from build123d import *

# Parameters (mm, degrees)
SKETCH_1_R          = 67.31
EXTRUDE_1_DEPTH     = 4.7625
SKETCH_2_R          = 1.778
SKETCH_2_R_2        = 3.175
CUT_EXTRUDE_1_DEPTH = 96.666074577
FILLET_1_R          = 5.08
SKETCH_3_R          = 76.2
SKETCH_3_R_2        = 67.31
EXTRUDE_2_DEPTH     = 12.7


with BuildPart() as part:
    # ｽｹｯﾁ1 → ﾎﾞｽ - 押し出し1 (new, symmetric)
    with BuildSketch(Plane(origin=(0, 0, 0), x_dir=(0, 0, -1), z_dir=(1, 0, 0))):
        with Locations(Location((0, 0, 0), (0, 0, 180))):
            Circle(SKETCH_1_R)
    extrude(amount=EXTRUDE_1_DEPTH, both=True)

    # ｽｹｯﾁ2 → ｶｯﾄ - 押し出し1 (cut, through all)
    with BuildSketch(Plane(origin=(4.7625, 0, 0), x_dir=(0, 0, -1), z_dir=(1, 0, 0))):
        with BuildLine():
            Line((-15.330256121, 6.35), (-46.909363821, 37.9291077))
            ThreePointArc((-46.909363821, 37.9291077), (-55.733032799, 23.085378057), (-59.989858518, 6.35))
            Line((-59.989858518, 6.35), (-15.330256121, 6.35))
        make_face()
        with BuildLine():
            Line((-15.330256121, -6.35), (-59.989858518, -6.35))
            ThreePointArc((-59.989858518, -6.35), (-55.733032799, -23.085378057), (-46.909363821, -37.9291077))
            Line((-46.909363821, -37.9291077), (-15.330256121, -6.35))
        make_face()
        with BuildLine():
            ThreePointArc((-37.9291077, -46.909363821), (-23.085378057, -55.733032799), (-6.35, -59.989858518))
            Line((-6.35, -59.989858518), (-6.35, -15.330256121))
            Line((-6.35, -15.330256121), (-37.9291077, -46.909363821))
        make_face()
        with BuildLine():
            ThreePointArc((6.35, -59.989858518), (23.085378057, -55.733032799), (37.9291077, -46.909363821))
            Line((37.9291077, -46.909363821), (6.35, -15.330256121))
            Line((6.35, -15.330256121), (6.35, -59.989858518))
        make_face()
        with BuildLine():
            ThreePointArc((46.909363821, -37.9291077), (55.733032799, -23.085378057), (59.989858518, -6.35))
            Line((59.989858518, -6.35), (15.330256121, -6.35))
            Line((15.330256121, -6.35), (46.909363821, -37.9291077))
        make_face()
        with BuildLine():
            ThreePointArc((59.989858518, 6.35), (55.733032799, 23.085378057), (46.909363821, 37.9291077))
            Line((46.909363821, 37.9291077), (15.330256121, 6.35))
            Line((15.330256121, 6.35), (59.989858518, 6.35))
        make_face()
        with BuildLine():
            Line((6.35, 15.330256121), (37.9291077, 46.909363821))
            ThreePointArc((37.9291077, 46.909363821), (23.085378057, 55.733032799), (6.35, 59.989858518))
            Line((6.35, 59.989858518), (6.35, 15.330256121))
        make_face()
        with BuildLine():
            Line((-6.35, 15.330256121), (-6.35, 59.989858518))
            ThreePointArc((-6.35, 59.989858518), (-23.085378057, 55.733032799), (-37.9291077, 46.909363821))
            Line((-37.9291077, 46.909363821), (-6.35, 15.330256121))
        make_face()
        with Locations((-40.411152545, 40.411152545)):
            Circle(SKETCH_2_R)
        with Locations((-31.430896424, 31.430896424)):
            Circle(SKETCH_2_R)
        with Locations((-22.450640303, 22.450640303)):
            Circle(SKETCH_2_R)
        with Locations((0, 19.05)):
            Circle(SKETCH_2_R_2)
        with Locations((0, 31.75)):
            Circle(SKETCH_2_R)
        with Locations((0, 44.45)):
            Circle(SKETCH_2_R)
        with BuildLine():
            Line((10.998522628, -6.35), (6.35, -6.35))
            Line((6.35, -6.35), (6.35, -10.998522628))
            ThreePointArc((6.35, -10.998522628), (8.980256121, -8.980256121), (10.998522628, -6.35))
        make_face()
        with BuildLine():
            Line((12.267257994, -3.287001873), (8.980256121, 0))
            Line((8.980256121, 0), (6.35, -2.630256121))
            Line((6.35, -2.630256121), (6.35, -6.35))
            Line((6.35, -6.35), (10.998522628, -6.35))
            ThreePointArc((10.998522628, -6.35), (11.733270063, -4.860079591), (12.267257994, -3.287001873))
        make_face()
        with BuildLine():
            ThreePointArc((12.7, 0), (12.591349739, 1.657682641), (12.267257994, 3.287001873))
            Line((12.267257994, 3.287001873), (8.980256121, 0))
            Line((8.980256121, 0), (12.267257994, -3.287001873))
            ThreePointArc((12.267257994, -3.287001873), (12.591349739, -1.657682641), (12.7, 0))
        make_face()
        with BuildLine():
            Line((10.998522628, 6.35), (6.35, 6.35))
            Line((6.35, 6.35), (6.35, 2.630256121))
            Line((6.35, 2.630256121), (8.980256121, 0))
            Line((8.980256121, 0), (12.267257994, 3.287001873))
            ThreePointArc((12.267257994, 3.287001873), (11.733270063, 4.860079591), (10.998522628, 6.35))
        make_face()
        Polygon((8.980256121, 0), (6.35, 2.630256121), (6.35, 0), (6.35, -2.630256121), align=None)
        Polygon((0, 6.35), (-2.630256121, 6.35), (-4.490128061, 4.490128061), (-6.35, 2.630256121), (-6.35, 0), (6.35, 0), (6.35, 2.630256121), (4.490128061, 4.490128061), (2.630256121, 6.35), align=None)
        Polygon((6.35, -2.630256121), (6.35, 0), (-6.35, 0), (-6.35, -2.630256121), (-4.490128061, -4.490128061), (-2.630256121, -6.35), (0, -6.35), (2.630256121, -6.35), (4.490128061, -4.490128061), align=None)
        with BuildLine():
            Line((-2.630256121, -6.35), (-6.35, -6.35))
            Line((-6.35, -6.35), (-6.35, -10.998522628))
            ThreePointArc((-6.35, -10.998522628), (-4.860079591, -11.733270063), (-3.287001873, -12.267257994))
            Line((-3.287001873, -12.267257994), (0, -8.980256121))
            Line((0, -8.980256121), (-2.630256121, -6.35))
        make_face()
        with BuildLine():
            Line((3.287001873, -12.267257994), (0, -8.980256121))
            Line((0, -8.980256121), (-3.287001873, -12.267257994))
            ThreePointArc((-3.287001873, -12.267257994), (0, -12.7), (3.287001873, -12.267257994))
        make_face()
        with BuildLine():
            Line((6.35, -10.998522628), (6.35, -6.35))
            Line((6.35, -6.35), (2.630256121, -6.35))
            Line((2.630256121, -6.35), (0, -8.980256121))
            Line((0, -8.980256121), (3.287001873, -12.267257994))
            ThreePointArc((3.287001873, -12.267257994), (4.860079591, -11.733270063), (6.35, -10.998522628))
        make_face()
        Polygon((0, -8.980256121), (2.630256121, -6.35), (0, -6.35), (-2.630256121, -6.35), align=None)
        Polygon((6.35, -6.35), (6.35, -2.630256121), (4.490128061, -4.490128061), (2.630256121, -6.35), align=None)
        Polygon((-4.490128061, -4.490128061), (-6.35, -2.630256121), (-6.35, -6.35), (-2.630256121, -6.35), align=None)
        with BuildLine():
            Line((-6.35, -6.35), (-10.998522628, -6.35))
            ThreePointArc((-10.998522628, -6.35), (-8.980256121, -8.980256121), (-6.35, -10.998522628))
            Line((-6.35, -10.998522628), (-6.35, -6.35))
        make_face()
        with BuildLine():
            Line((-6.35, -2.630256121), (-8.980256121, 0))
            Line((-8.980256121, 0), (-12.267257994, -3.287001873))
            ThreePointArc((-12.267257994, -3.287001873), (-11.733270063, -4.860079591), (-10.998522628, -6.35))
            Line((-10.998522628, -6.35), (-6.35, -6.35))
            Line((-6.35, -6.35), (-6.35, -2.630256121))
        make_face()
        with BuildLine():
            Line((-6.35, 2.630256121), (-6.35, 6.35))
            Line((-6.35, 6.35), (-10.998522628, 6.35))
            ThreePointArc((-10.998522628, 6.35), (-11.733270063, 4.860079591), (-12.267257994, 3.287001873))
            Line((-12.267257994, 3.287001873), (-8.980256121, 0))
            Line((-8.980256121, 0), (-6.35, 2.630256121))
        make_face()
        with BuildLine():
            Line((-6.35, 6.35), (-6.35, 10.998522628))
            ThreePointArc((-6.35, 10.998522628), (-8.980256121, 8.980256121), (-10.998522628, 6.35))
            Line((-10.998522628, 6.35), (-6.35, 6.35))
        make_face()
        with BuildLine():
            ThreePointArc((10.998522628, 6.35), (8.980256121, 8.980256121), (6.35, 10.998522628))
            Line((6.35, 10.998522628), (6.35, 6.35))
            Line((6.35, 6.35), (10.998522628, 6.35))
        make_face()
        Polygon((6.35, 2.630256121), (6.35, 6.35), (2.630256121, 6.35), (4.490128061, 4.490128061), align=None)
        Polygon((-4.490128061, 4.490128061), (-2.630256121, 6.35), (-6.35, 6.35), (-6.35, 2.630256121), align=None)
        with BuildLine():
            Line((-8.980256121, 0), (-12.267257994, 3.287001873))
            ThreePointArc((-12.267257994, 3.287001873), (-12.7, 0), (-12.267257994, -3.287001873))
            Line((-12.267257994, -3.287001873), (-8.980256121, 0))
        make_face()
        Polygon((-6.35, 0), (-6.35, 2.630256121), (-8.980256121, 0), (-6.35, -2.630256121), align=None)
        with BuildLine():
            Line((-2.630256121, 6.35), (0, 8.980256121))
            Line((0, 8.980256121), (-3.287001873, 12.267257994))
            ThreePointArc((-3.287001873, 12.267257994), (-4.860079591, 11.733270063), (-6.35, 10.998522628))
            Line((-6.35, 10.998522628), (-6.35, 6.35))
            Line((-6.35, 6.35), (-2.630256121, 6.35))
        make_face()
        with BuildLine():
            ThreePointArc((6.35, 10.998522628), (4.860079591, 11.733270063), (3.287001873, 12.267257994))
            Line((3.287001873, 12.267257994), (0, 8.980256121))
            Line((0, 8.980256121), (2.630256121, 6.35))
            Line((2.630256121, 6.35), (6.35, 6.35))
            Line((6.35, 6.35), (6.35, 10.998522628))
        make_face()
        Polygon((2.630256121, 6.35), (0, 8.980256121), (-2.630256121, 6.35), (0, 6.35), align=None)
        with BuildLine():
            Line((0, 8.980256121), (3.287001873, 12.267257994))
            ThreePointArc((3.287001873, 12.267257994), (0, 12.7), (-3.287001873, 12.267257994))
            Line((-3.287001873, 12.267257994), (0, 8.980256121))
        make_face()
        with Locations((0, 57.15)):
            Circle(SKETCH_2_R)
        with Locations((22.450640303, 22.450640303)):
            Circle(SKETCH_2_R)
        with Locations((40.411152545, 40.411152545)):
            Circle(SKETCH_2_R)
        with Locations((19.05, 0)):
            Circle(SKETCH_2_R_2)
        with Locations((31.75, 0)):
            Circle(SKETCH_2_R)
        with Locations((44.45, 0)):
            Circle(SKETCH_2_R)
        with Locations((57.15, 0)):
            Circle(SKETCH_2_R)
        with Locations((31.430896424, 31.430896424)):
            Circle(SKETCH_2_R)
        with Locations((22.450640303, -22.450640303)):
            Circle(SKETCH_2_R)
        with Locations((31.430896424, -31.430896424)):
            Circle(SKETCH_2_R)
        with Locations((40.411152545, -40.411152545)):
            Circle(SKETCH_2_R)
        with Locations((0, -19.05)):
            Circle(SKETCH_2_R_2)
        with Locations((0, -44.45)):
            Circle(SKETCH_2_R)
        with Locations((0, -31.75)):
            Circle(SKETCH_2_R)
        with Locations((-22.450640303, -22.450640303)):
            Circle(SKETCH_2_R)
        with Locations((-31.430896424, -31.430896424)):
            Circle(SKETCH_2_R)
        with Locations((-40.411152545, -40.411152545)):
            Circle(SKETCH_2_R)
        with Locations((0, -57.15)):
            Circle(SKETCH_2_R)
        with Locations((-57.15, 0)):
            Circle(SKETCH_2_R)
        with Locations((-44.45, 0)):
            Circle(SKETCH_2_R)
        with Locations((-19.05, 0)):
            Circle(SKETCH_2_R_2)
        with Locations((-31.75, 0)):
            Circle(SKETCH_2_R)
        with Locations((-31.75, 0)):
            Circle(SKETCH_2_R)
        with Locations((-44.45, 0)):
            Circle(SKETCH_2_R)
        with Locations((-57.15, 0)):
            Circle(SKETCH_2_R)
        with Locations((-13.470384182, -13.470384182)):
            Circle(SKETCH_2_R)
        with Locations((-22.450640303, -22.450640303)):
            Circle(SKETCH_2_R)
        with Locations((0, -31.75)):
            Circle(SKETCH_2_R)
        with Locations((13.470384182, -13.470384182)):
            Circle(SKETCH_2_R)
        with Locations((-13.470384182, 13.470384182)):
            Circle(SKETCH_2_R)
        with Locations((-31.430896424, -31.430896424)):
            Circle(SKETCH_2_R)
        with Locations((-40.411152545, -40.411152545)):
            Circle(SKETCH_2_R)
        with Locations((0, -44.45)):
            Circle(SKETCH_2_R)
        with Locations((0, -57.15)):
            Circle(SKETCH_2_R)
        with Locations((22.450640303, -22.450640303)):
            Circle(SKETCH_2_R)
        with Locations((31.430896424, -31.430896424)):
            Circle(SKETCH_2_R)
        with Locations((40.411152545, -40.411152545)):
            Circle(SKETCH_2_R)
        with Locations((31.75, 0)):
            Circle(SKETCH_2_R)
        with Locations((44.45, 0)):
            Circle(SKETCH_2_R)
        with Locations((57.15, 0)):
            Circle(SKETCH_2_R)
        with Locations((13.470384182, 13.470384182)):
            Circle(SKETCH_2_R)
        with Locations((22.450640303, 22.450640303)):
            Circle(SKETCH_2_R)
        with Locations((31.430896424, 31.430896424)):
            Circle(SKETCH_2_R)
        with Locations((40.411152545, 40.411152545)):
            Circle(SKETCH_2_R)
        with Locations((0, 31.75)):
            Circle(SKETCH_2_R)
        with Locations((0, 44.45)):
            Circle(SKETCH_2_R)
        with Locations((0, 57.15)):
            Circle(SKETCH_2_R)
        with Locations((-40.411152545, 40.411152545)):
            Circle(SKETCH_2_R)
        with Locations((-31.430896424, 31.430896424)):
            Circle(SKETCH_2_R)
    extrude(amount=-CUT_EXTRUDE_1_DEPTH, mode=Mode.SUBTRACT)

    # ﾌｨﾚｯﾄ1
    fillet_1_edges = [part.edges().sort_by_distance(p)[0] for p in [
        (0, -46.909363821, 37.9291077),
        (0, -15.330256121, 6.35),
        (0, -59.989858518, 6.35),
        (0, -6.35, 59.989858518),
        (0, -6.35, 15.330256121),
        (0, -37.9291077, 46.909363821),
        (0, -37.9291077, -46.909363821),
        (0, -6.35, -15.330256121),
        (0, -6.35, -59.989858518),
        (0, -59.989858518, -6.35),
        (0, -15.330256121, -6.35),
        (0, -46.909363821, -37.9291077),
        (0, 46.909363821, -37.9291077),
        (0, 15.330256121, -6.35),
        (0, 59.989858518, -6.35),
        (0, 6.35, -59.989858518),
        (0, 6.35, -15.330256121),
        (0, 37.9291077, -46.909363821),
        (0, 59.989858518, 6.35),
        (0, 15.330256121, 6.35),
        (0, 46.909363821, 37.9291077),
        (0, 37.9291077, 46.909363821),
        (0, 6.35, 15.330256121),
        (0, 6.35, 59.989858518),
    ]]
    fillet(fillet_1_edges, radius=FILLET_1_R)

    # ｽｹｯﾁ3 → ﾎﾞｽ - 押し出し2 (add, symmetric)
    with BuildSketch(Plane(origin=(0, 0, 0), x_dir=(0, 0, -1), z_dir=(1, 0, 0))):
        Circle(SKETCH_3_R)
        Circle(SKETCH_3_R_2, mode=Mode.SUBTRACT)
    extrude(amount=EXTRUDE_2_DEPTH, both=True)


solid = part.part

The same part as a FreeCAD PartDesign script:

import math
import FreeCAD as App
import Part
import Sketcher
from FreeCAD import Vector
Q = App.Units.Quantity


def edges_at(feature, points):
    """Names of the edges that pass closest to the given points."""
    edges = feature.Shape.Edges
    near = lambda p: min(range(len(edges)), key=lambda i: edges[i].distToShape(Part.Vertex(*p))[0])
    return sorted({f"Edge{near(p) + 1}" for p in points})

doc = App.newDocument("Part")
body = doc.addObject("PartDesign::Body", "Body")

# Sketch on YZ plane
sketch1 = doc.addObject("Sketcher::SketchObject", "Sketch")
body.addObject(sketch1)
sketch1.AttachmentSupport = (doc.YZ_Plane, [""])
sketch1.MapMode = "FlatFace"
sketch1.addGeometry(Part.Circle(Vector(0, 0, 0), Vector(0, 0, 1), 67.31), False)
sketch1.addConstraint([
    Sketcher.Constraint("Coincident", 0, 3, -1, 1),
    Sketcher.Constraint("Diameter", 0, Q("5.3 in")),
])
pad1 = doc.addObject("PartDesign::Pad", "Pad")
body.addObject(pad1)
pad1.Profile = sketch1
pad1.Length = Q("0.375 in")
pad1.Midplane = True

# Sketch on YZ plane
sketch2 = doc.addObject("Sketcher::SketchObject", "Sketch001")
body.addObject(sketch2)
sketch2.AttachmentSupport = (doc.YZ_Plane, [""])
sketch2.MapMode = "FlatFace"
sketch2.AttachmentOffset = App.Placement(Vector(0, 0, 0.1875 * 25.4), App.Rotation())
sketch2.addGeometry([
    Part.LineSegment(Vector(6.35, 15.330256, 0), Vector(37.929108, 46.909364, 0)),  # 0
    Part.ArcOfCircle(Part.Circle(Vector(0, 0, 0), Vector(0, 0, 1), 60.325), math.radians(51.042328), math.radians(83.957672)),  # 1
    Part.LineSegment(Vector(6.35, 59.989859, 0), Vector(6.35, 15.330256, 0)),  # 2
    Part.LineSegment(Vector(-6.35, 15.330256, 0), Vector(-6.35, 59.989859, 0)),  # 3
    Part.ArcOfCircle(Part.Circle(Vector(0, 0, 0), Vector(0, 0, 1), 60.325), math.radians(96.042328), math.radians(128.957672)),  # 4
    Part.LineSegment(Vector(-37.929108, 46.909364, 0), Vector(-6.35, 15.330256, 0)),  # 5
    Part.ArcOfCircle(Part.Circle(Vector(0, 0, 0), Vector(0, 0, 1), 60.325), math.radians(141.042328), math.radians(173.957672)),  # 6
    Part.LineSegment(Vector(-59.989859, 6.35, 0), Vector(-15.330256, 6.35, 0)),  # 7
    Part.LineSegment(Vector(-15.330256, 6.35, 0), Vector(-46.909364, 37.929108, 0)),  # 8
    Part.ArcOfCircle(Part.Circle(Vector(0, 0, 0), Vector(0, 0, 1), 60.325), math.radians(-173.957672), math.radians(-141.042328)),  # 9
    Part.LineSegment(Vector(-46.909364, -37.929108, 0), Vector(-15.330256, -6.35, 0)),  # 10
    Part.LineSegment(Vector(-15.330256, -6.35, 0), Vector(-59.989859, -6.35, 0)),  # 11
    Part.ArcOfCircle(Part.Circle(Vector(0, 0, 0), Vector(0, 0, 1), 60.325), math.radians(-128.957672), math.radians(-96.042328)),  # 12
    Part.LineSegment(Vector(-6.35, -59.989859, 0), Vector(-6.35, -15.330256, 0)),  # 13
    Part.LineSegment(Vector(-6.35, -15.330256, 0), Vector(-37.929108, -46.909364, 0)),  # 14
    Part.ArcOfCircle(Part.Circle(Vector(0, 0, 0), Vector(0, 0, 1), 60.325), math.radians(-83.957672), math.radians(-51.042328)),  # 15
    Part.LineSegment(Vector(37.929108, -46.909364, 0), Vector(6.35, -15.330256, 0)),  # 16
    Part.LineSegment(Vector(6.35, -15.330256, 0), Vector(6.35, -59.989859, 0)),  # 17
    Part.LineSegment(Vector(15.330256, -6.35, 0), Vector(46.909364, -37.929108, 0)),  # 18
    Part.ArcOfCircle(Part.Circle(Vector(0, 0, 0), Vector(0, 0, 1), 60.325), math.radians(-38.957672), math.radians(-6.042328)),  # 19
    Part.LineSegment(Vector(59.989859, -6.35, 0), Vector(15.330256, -6.35, 0)),  # 20
    Part.LineSegment(Vector(15.330256, 6.35, 0), Vector(59.989859, 6.35, 0)),  # 21
    Part.ArcOfCircle(Part.Circle(Vector(0, 0, 0), Vector(0, 0, 1), 60.325), math.radians(6.042328), math.radians(38.957672)),  # 22
    Part.LineSegment(Vector(46.909364, 37.929108, 0), Vector(15.330256, 6.35, 0)),  # 23
    Part.Circle(Vector(40.411153, 40.411153, 0), Vector(0, 0, 1), 1.778),  # 24
    Part.Circle(Vector(31.430896, 31.430896, 0), Vector(0, 0, 1), 1.778),  # 25
    Part.Circle(Vector(22.45064, 22.45064, 0), Vector(0, 0, 1), 1.778),  # 26
    Part.Circle(Vector(19.05, 0, 0), Vector(0, 0, 1), 3.175),  # 27
    Part.Circle(Vector(31.75, 0, 0), Vector(0, 0, 1), 1.778),  # 28
    Part.Circle(Vector(44.45, 0, 0), Vector(0, 0, 1), 1.778),  # 29
    Part.ArcOfCircle(Part.Circle(Vector(0, 0, 0), Vector(0, 0, 1), 12.7), math.radians(15), math.radians(30)),  # 30
    Part.ArcOfCircle(Part.Circle(Vector(0, 0, 0), Vector(0, 0, 1), 12.7), math.radians(30), math.radians(60)),  # 31
    Part.ArcOfCircle(Part.Circle(Vector(0, 0, 0), Vector(0, 0, 1), 12.7), math.radians(60), math.radians(75)),  # 32
    Part.ArcOfCircle(Part.Circle(Vector(0, 0, 0), Vector(0, 0, 1), 12.7), math.radians(75), math.radians(105)),  # 33
    Part.ArcOfCircle(Part.Circle(Vector(0, 0, 0), Vector(0, 0, 1), 12.7), math.radians(105), math.radians(120)),  # 34
    Part.ArcOfCircle(Part.Circle(Vector(0, 0, 0), Vector(0, 0, 1), 12.7), math.radians(120), math.radians(150)),  # 35
    Part.ArcOfCircle(Part.Circle(Vector(0, 0, 0), Vector(0, 0, 1), 12.7), math.radians(150), math.radians(165)),  # 36
    Part.ArcOfCircle(Part.Circle(Vector(0, 0, 0), Vector(0, 0, 1), 12.7), math.radians(165), math.radians(195)),  # 37
    Part.ArcOfCircle(Part.Circle(Vector(0, 0, 0), Vector(0, 0, 1), 12.7), math.radians(-165), math.radians(-150)),  # 38
    Part.ArcOfCircle(Part.Circle(Vector(0, 0, 0), Vector(0, 0, 1), 12.7), math.radians(-150), math.radians(-120)),  # 39
    Part.ArcOfCircle(Part.Circle(Vector(0, 0, 0), Vector(0, 0, 1), 12.7), math.radians(-120), math.radians(-105)),  # 40
    Part.ArcOfCircle(Part.Circle(Vector(0, 0, 0), Vector(0, 0, 1), 12.7), math.radians(-105), math.radians(-90)),  # 41
    Part.ArcOfCircle(Part.Circle(Vector(0, 0, 0), Vector(0, 0, 1), 12.7), math.radians(-90), math.radians(-75)),  # 42
    Part.ArcOfCircle(Part.Circle(Vector(0, 0, 0), Vector(0, 0, 1), 12.7), math.radians(-75), math.radians(-60)),  # 43
    Part.ArcOfCircle(Part.Circle(Vector(0, 0, 0), Vector(0, 0, 1), 12.7), math.radians(-60), math.radians(-30)),  # 44
    Part.ArcOfCircle(Part.Circle(Vector(0, 0, 0), Vector(0, 0, 1), 12.7), math.radians(-30), math.radians(-15)),  # 45
    Part.ArcOfCircle(Part.Circle(Vector(0, 0, 0), Vector(0, 0, 1), 12.7), math.radians(-15), math.radians(15)),  # 46
    Part.Circle(Vector(57.15, 0, 0), Vector(0, 0, 1), 1.778),  # 47
    Part.Circle(Vector(22.45064, -22.45064, 0), Vector(0, 0, 1), 1.778),  # 48
    Part.Circle(Vector(40.411153, -40.411153, 0), Vector(0, 0, 1), 1.778),  # 49
    Part.Circle(Vector(0, -19.05, 0), Vector(0, 0, 1), 3.175),  # 50
    Part.Circle(Vector(0, -31.75, 0), Vector(0, 0, 1), 1.778),  # 51
    Part.Circle(Vector(0, -44.45, 0), Vector(0, 0, 1), 1.778),  # 52
    Part.Circle(Vector(0, -57.15, 0), Vector(0, 0, 1), 1.778),  # 53
    Part.Circle(Vector(31.430896, -31.430896, 0), Vector(0, 0, 1), 1.778),  # 54
    Part.Circle(Vector(-22.45064, -22.45064, 0), Vector(0, 0, 1), 1.778),  # 55
    Part.Circle(Vector(-31.430896, -31.430896, 0), Vector(0, 0, 1), 1.778),  # 56
    Part.Circle(Vector(-40.411153, -40.411153, 0), Vector(0, 0, 1), 1.778),  # 57
    Part.Circle(Vector(-19.05, 0, 0), Vector(0, 0, 1), 3.175),  # 58
    Part.Circle(Vector(-44.45, 0, 0), Vector(0, 0, 1), 1.778),  # 59
    Part.Circle(Vector(-31.75, 0, 0), Vector(0, 0, 1), 1.778),  # 60
    Part.Circle(Vector(-22.45064, 22.45064, 0), Vector(0, 0, 1), 1.778),  # 61
    Part.Circle(Vector(-31.430896, 31.430896, 0), Vector(0, 0, 1), 1.778),  # 62
    Part.Circle(Vector(-40.411153, 40.411153, 0), Vector(0, 0, 1), 1.778),  # 63
    Part.Circle(Vector(-57.15, 0, 0), Vector(0, 0, 1), 1.778),  # 64
    Part.Circle(Vector(0, 57.15, 0), Vector(0, 0, 1), 1.778),  # 65
    Part.Circle(Vector(0, 44.45, 0), Vector(0, 0, 1), 1.778),  # 66
    Part.Circle(Vector(0, 19.05, 0), Vector(0, 0, 1), 3.175),  # 67
    Part.Circle(Vector(0, 31.75, 0), Vector(0, 0, 1), 1.778),  # 68
    Part.Circle(Vector(-13.470384, 13.470384, 0), Vector(0, 0, 1), 1.778),  # 69
    Part.Circle(Vector(-13.470384, -13.470384, 0), Vector(0, 0, 1), 1.778),  # 70
    Part.Circle(Vector(13.470384, 13.470384, 0), Vector(0, 0, 1), 1.778),  # 71
    Part.Circle(Vector(13.470384, -13.470384, 0), Vector(0, 0, 1), 1.778),  # 72
], False)
sketch2.addConstraint([
    Sketcher.Constraint("Coincident", 0, 2, 1, 1),
    Sketcher.Constraint("Coincident", 1, 2, 2, 1),
    Sketcher.Constraint("Coincident", 2, 2, 0, 1),
    Sketcher.Constraint("Coincident", 3, 2, 4, 1),
    Sketcher.Constraint("Coincident", 4, 2, 5, 1),
    Sketcher.Constraint("Coincident", 5, 2, 3, 1),
    Sketcher.Constraint("Coincident", 6, 2, 7, 1),
    Sketcher.Constraint("Coincident", 7, 2, 8, 1),
    Sketcher.Constraint("Coincident", 8, 2, 6, 1),
    Sketcher.Constraint("Coincident", 9, 2, 10, 1),
    Sketcher.Constraint("Coincident", 10, 2, 11, 1),
    Sketcher.Constraint("Coincident", 11, 2, 9, 1),
    Sketcher.Constraint("Coincident", 12, 2, 13, 1),
    Sketcher.Constraint("Coincident", 13, 2, 14, 1),
    Sketcher.Constraint("Coincident", 14, 2, 12, 1),
    Sketcher.Constraint("Coincident", 15, 2, 16, 1),
    Sketcher.Constraint("Coincident", 16, 2, 17, 1),
    Sketcher.Constraint("Coincident", 17, 2, 15, 1),
    Sketcher.Constraint("Coincident", 18, 2, 19, 1),
    Sketcher.Constraint("Coincident", 19, 2, 20, 1),
    Sketcher.Constraint("Coincident", 20, 2, 18, 1),
    Sketcher.Constraint("Coincident", 21, 2, 22, 1),
    Sketcher.Constraint("Coincident", 22, 2, 23, 1),
    Sketcher.Constraint("Coincident", 23, 2, 21, 1),
    Sketcher.Constraint("Tangent", 30, 2, 31, 1),
    Sketcher.Constraint("Tangent", 31, 2, 32, 1),
    Sketcher.Constraint("Tangent", 32, 2, 33, 1),
    Sketcher.Constraint("Tangent", 33, 2, 34, 1),
    Sketcher.Constraint("Tangent", 34, 2, 35, 1),
    Sketcher.Constraint("Tangent", 35, 2, 36, 1),
    Sketcher.Constraint("Tangent", 36, 2, 37, 1),
    Sketcher.Constraint("Tangent", 37, 2, 38, 1),
    Sketcher.Constraint("Tangent", 38, 2, 39, 1),
    Sketcher.Constraint("Tangent", 39, 2, 40, 1),
    Sketcher.Constraint("Tangent", 40, 2, 41, 1),
    Sketcher.Constraint("Tangent", 41, 2, 42, 1),
    Sketcher.Constraint("Tangent", 42, 2, 43, 1),
    Sketcher.Constraint("Tangent", 43, 2, 44, 1),
    Sketcher.Constraint("Tangent", 44, 2, 45, 1),
    Sketcher.Constraint("Tangent", 45, 2, 46, 1),
    Sketcher.Constraint("Tangent", 46, 2, 30, 1),
    Sketcher.Constraint("Vertical", 2),
    Sketcher.Constraint("Vertical", 3),
    Sketcher.Constraint("Horizontal", 7),
    Sketcher.Constraint("Horizontal", 11),
    Sketcher.Constraint("Vertical", 13),
    Sketcher.Constraint("Vertical", 17),
    Sketcher.Constraint("Horizontal", 20),
    Sketcher.Constraint("Horizontal", 21),
    Sketcher.Constraint("Coincident", 1, 3, -1, 1),
    Sketcher.Constraint("Coincident", 4, 3, -1, 1),
    Sketcher.Constraint("Coincident", 6, 3, -1, 1),
    Sketcher.Constraint("Coincident", 9, 3, -1, 1),
    Sketcher.Constraint("Coincident", 12, 3, -1, 1),
    Sketcher.Constraint("Coincident", 15, 3, -1, 1),
    Sketcher.Constraint("Coincident", 19, 3, -1, 1),
    Sketcher.Constraint("Coincident", 22, 3, -1, 1),
    Sketcher.Constraint("Coincident", 30, 3, -1, 1),
    Sketcher.Constraint("Coincident", 32, 3, -1, 1),
    Sketcher.Constraint("Coincident", 34, 3, -1, 1),
    Sketcher.Constraint("Coincident", 36, 3, -1, 1),
    Sketcher.Constraint("Coincident", 38, 3, -1, 1),
    Sketcher.Constraint("Coincident", 40, 3, -1, 1),
    Sketcher.Constraint("Coincident", 42, 3, -1, 1),
    Sketcher.Constraint("Coincident", 44, 3, -1, 1),
    Sketcher.Constraint("Equal", 1, 4),
    Sketcher.Constraint("Equal", 4, 6),
    Sketcher.Constraint("Equal", 6, 9),
    Sketcher.Constraint("Equal", 9, 12),
    Sketcher.Constraint("Equal", 12, 15),
    Sketcher.Constraint("Equal", 15, 19),
    Sketcher.Constraint("Equal", 19, 22),
    Sketcher.Constraint("Equal", 24, 25),
    Sketcher.Constraint("Equal", 25, 26),
    Sketcher.Constraint("Equal", 26, 28),
    Sketcher.Constraint("Equal", 28, 29),
    Sketcher.Constraint("Equal", 29, 47),
    Sketcher.Constraint("Equal", 47, 48),
    Sketcher.Constraint("Equal", 48, 49),
    Sketcher.Constraint("Equal", 27, 50),
    Sketcher.Constraint("Equal", 49, 51),
    Sketcher.Constraint("Equal", 51, 52),
    Sketcher.Constraint("Equal", 52, 53),
    Sketcher.Constraint("Equal", 53, 54),
    Sketcher.Constraint("Equal", 54, 55),
    Sketcher.Constraint("Equal", 55, 56),
    Sketcher.Constraint("Equal", 56, 57),
    Sketcher.Constraint("Equal", 50, 58),
    Sketcher.Constraint("Equal", 57, 59),
    Sketcher.Constraint("Equal", 59, 60),
    Sketcher.Constraint("Equal", 60, 61),
    Sketcher.Constraint("Equal", 61, 62),
    Sketcher.Constraint("Equal", 62, 63),
    Sketcher.Constraint("Equal", 63, 64),
    Sketcher.Constraint("Equal", 64, 65),
    Sketcher.Constraint("Equal", 65, 66),
    Sketcher.Constraint("Equal", 58, 67),
    Sketcher.Constraint("Equal", 66, 68),
    Sketcher.Constraint("Equal", 68, 69),
    Sketcher.Constraint("Equal", 69, 70),
    Sketcher.Constraint("Equal", 70, 71),
    Sketcher.Constraint("Equal", 71, 72),
    Sketcher.Constraint("Symmetric", 26, 3, 55, 3, -1, 1),
    Sketcher.Constraint("Symmetric", 25, 3, 56, 3, -1, 1),
    Sketcher.Constraint("Symmetric", 24, 3, 57, 3, -1, 1),
    Sketcher.Constraint("Symmetric", 27, 3, 58, 3, -1, 1),
    Sketcher.Constraint("Symmetric", 29, 3, 59, 3, -1, 1),
    Sketcher.Constraint("Symmetric", 28, 3, 60, 3, -1, 1),
    Sketcher.Constraint("Symmetric", 48, 3, 61, 3, -1, 1),
    Sketcher.Constraint("Symmetric", 54, 3, 62, 3, -1, 1),
    Sketcher.Constraint("Symmetric", 49, 3, 63, 3, -1, 1),
    Sketcher.Constraint("Symmetric", 47, 3, 64, 3, -1, 1),
    Sketcher.Constraint("Symmetric", 53, 3, 65, 3, -1, 1),
    Sketcher.Constraint("Symmetric", 52, 3, 66, 3, -1, 1),
    Sketcher.Constraint("Symmetric", 50, 3, 67, 3, -1, 1),
    Sketcher.Constraint("Symmetric", 51, 3, 68, 3, -1, 1),
    Sketcher.Constraint("Symmetric", 70, 3, 71, 3, -1, 1),
    Sketcher.Constraint("Symmetric", 69, 3, 72, 3, -1, 1),
    Sketcher.Constraint("Symmetric", 2, 2, 13, 2, -1, 1),
    Sketcher.Constraint("Symmetric", 5, 2, 16, 2, -1, 1),
    Sketcher.Constraint("Symmetric", 7, 2, 20, 2, -1, 1),
    Sketcher.Constraint("Symmetric", 10, 2, 23, 2, -1, 1),
    Sketcher.Constraint("Symmetric", 48, 3, 55, 3, -2),
    Sketcher.Constraint("Symmetric", 54, 3, 56, 3, -2),
    Sketcher.Constraint("Symmetric", 49, 3, 57, 3, -2),
    Sketcher.Constraint("Symmetric", 69, 3, 71, 3, -2),
    Sketcher.Constraint("Symmetric", 2, 2, 5, 2, -2),
    Sketcher.Constraint("Symmetric", 10, 2, 20, 2, -2),
    Sketcher.Constraint("PointOnObject", 27, 3, -1),
    Sketcher.Constraint("PointOnObject", 28, 3, -1),
    Sketcher.Constraint("PointOnObject", 29, 3, -1),
    Sketcher.Constraint("PointOnObject", 47, 3, -1),
    Sketcher.Constraint("PointOnObject", 50, 3, -2),
    Sketcher.Constraint("PointOnObject", 51, 3, -2),
    Sketcher.Constraint("PointOnObject", 52, 3, -2),
    Sketcher.Constraint("PointOnObject", 53, 3, -2),
    Sketcher.Constraint("PointOnObject", 41, 2, -2),
    Sketcher.Constraint("Perpendicular", 0, 5),
    Sketcher.Constraint("Parallel", 5, 8),
    Sketcher.Constraint("Perpendicular", 8, 10),
    Sketcher.Constraint("Parallel", 10, 14),
    Sketcher.Constraint("Perpendicular", 14, 16),
    Sketcher.Constraint("Parallel", 16, 18),
    Sketcher.Constraint("Perpendicular", 18, 23),
    Sketcher.Constraint("Horizontal", 0, 2, 4, 2),
    Sketcher.Constraint("Horizontal", 23, 2, 30, 2),
    Sketcher.Constraint("Horizontal", 32, 2, 33, 2),
    Sketcher.Constraint("Horizontal", 31, 2, 34, 2),
    Sketcher.Constraint("Horizontal", 30, 2, 35, 2),
    Sketcher.Constraint("Horizontal", 20, 2, 38, 2),
    Sketcher.Constraint("Horizontal", 40, 2, 42, 2),
    Sketcher.Constraint("Horizontal", 39, 2, 43, 2),
    Sketcher.Constraint("Horizontal", 38, 2, 44, 2),
    Sketcher.Constraint("Horizontal", 37, 2, 45, 2),
    Sketcher.Constraint("Horizontal", 36, 2, 46, 2),
    Sketcher.Constraint("Vertical", 17, 2, 31, 2),
    Sketcher.Constraint("Vertical", 36, 2, 37, 2),
    Sketcher.Constraint("Vertical", 34, 2, 39, 2),
    Sketcher.Constraint("Vertical", 33, 2, 40, 2),
    Sketcher.Constraint("Equal", 21, 2),
    Sketcher.Constraint("Equal", 5, 8),
    Sketcher.Constraint("Radius", 30, Q("0.5 in")),
    Sketcher.Constraint("Diameter", 24, Q("0.14 in")),
    Sketcher.Constraint("Diameter", 27, Q("0.25 in")),
    Sketcher.Constraint("Radius", 1, Q("2.375 in")),
    Sketcher.Constraint("DistanceX", -1, 1, 27, 3, Q("0.75 in")),
    Sketcher.Constraint("DistanceX", -1, 1, 28, 3, Q("1.25 in")),
    Sketcher.Constraint("DistanceX", -1, 1, 29, 3, Q("1.75 in")),
    Sketcher.Constraint("DistanceX", -1, 1, 47, 3, Q("2.25 in")),
    Sketcher.Constraint("DistanceY", 50, 3, -1, 1, Q("0.75 in")),
    Sketcher.Constraint("DistanceY", 51, 3, -1, 1, Q("1.25 in")),
    Sketcher.Constraint("DistanceY", 52, 3, -1, 1, Q("1.75 in")),
    Sketcher.Constraint("DistanceY", 53, 3, -1, 1, Q("2.25 in")),
    Sketcher.Constraint("DistanceX", -1, 1, 1, 2, Q("0.25 in")),
    Sketcher.Constraint("DistanceX", -1, 1, 32, 2, Q("3.287002 mm")),
    Sketcher.Constraint("DistanceY", -1, 1, 36, 2, Q("3.287002 mm")),
    Sketcher.Constraint("DistanceX", 7, 1, 7, 2, Q("44.659602 mm")),
    Sketcher.Constraint("DistanceX", -1, 1, 26, 3, Q("22.45064 mm")),
    Sketcher.Constraint("DistanceY", -1, 1, 26, 3, Q("22.45064 mm")),
    Sketcher.Constraint("DistanceX", -1, 1, 24, 3, Q("40.411153 mm")),
    Sketcher.Constraint("DistanceY", -1, 1, 24, 3, Q("40.411153 mm")),
    Sketcher.Constraint("DistanceX", -1, 1, 25, 3, Q("31.430896 mm")),
    Sketcher.Constraint("DistanceY", -1, 1, 25, 3, Q("31.430896 mm")),
    Sketcher.Constraint("DistanceX", 69, 3, -1, 1, Q("13.470384 mm")),
    Sketcher.Constraint("DistanceY", -1, 1, 69, 3, Q("13.470384 mm")),
])
pocket1 = doc.addObject("PartDesign::Pocket", "Pocket")
body.addObject(pocket1)
pocket1.Profile = sketch2
pocket1.Type = "ThroughAll"
doc.recompute()

fillet = doc.addObject("PartDesign::Fillet", "Fillet")
body.addObject(fillet)
fillet.Base = (pocket1, edges_at(pocket1, [
    (0, -46.909, 37.929),
    (0, -15.33, 6.35),
    (0, -59.99, 6.35),
    (0, -6.35, 59.99),
    (0, -6.35, 15.33),
    (0, -37.929, 46.909),
    (0, -37.929, -46.909),
    (0, -6.35, -15.33),
    (0, -6.35, -59.99),
    (0, -59.99, -6.35),
    (0, -15.33, -6.35),
    (0, -46.909, -37.929),
    (0, 46.909, -37.929),
    (0, 15.33, -6.35),
    (0, 59.99, -6.35),
    (0, 6.35, -59.99),
    (0, 6.35, -15.33),
    (0, 37.929, -46.909),
    (0, 59.99, 6.35),
    (0, 15.33, 6.35),
    (0, 46.909, 37.929),
    (0, 37.929, 46.909),
    (0, 6.35, 15.33),
    (0, 6.35, 59.99),
]))
fillet.Radius = Q("0.2 in")

# Sketch on YZ plane
sketch3 = doc.addObject("Sketcher::SketchObject", "Sketch002")
body.addObject(sketch3)
sketch3.AttachmentSupport = (doc.YZ_Plane, [""])
sketch3.MapMode = "FlatFace"
sketch3.addGeometry([
    Part.Circle(Vector(0, 0, 0), Vector(0, 0, 1), 76.2),
    Part.Circle(Vector(0, 0, 0), Vector(0, 0, 1), 67.31),
], False)
sketch3.addConstraint([
    Sketcher.Constraint("Coincident", 0, 3, -1, 1),
    Sketcher.Constraint("Coincident", 1, 3, -1, 1),
    Sketcher.Constraint("Diameter", 0, Q("6 in")),
    Sketcher.Constraint("Diameter", 1, Q("5.3 in")),
])
pad2 = doc.addObject("PartDesign::Pad", "Pad001")
body.addObject(pad2)
pad2.Profile = sketch3
pad2.Length = Q("1 in")
pad2.Midplane = True

doc.recompute()
